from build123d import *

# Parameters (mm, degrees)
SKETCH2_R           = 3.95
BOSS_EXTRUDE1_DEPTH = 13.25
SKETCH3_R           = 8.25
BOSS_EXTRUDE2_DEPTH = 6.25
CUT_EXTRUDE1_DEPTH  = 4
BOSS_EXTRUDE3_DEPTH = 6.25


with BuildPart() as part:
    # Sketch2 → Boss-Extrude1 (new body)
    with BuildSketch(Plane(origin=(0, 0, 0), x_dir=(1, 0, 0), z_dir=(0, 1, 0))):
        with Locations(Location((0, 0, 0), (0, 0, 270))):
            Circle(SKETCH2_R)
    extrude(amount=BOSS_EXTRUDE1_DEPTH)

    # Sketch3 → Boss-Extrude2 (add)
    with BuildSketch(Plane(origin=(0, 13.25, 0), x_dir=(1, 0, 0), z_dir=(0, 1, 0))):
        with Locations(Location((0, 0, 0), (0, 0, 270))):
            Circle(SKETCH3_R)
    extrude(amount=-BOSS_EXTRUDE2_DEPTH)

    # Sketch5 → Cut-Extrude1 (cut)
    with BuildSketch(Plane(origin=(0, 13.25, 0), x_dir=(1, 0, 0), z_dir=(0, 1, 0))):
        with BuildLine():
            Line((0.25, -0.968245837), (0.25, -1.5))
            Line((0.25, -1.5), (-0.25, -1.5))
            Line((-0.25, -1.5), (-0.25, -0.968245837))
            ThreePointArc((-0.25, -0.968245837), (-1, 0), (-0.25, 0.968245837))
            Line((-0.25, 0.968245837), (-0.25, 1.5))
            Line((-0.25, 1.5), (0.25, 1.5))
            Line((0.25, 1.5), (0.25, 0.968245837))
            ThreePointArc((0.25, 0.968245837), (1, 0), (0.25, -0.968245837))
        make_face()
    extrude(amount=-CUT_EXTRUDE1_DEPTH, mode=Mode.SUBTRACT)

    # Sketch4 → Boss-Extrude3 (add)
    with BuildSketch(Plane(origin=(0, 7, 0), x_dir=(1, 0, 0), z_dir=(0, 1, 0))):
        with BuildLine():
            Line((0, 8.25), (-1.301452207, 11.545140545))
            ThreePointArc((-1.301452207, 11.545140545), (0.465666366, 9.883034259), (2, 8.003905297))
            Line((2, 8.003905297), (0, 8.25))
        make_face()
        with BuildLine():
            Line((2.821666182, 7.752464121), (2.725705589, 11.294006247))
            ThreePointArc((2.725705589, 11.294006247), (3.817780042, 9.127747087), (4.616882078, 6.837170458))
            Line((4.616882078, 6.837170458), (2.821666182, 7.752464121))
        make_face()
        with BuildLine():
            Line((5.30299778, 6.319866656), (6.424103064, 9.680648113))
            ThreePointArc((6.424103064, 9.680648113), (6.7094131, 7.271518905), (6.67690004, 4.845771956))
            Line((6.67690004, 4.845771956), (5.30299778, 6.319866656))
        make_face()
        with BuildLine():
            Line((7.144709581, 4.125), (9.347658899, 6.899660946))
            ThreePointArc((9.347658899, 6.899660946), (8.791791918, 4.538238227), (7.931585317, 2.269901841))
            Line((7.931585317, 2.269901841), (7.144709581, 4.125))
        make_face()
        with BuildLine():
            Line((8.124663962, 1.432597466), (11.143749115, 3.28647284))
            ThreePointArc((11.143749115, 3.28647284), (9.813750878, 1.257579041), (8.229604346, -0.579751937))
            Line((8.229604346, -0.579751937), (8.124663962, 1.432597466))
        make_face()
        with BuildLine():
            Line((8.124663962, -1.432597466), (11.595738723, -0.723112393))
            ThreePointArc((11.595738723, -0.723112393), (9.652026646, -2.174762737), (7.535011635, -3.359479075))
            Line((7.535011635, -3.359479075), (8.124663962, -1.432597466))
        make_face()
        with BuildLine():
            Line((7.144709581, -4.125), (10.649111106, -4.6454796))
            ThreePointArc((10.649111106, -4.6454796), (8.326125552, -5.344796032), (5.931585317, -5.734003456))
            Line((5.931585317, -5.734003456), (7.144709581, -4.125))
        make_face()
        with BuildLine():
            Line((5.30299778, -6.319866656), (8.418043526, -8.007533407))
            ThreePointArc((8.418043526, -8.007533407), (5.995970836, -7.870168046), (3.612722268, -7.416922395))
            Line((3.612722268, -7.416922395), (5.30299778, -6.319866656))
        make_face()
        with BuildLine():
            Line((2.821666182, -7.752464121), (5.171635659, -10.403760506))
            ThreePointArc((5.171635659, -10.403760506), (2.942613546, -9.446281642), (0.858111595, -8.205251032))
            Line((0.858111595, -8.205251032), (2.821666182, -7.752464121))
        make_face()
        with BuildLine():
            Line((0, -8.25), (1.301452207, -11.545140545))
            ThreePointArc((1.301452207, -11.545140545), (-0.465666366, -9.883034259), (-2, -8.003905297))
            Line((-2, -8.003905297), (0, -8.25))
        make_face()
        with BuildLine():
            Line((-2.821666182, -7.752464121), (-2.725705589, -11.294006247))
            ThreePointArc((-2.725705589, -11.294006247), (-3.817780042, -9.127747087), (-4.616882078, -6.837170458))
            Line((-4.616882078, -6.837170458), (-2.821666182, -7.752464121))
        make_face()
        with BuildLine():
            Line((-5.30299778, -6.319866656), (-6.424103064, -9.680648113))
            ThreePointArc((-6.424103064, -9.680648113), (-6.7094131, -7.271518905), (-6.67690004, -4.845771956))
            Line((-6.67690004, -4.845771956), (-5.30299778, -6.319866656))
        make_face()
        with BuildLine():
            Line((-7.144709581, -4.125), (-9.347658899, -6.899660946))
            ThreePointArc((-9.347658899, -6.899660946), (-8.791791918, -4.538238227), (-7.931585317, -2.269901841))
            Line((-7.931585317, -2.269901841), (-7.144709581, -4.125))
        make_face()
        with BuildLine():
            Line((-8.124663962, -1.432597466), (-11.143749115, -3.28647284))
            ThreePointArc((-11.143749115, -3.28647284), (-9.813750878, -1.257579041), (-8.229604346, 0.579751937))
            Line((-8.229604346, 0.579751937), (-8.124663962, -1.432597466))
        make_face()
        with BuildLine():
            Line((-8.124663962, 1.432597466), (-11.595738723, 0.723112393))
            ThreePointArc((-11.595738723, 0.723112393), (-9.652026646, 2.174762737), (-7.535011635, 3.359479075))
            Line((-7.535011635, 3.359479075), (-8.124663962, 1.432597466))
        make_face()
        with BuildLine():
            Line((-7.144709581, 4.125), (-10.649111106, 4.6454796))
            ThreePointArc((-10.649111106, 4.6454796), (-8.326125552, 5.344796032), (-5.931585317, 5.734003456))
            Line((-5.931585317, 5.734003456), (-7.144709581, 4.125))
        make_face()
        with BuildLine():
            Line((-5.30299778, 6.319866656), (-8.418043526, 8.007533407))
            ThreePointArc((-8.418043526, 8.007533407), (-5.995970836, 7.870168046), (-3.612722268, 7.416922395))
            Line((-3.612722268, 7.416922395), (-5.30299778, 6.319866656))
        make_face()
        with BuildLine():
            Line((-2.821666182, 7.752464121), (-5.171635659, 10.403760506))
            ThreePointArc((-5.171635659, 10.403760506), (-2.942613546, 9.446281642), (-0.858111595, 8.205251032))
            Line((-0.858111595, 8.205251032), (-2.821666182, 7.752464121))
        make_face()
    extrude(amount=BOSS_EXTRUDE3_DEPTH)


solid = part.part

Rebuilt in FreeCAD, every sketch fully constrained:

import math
import FreeCAD as App
import Part
import Sketcher

V = App.Vector
Q = App.Units.Quantity

doc = App.newDocument("Part")
body = doc.addObject("PartDesign::Body", "Body")

sketch1 = body.newObject("Sketcher::SketchObject", "Sketch")
sketch1.AttachmentSupport = (doc.getObject("XZ_Plane"), [""])
sketch1.MapMode = "FlatFace"
sketch1.addGeometry(Part.Circle(V(0, 0, 0), V(0, 0, 1), 4), False)
sketch1.addConstraint([
    Sketcher.Constraint("Coincident", 0, 3, -1, 1),
    Sketcher.Constraint("Diameter", 0, Q("7.9 mm")),
])
pad1 = body.newObject("PartDesign::Pad", "Pad")
pad1.Profile = sketch1
pad1.Length = 13.25
pad1.Reversed = True

sketch2 = body.newObject("Sketcher::SketchObject", "Sketch001")
sketch2.AttachmentSupport = (doc.getObject("XZ_Plane"), [""])
sketch2.MapMode = "FlatFace"
sketch2.AttachmentOffset = App.Placement(V(0, 0, -13.25), App.Rotation())
sketch2.addGeometry(Part.Circle(V(0, 0, 0), V(0, 0, 1), 8), False)
sketch2.addConstraint([
    Sketcher.Constraint("Coincident", 0, 3, -1, 1),
    Sketcher.Constraint("Diameter", 0, Q("16.5 mm")),
])
pad2 = body.newObject("PartDesign::Pad", "Pad001")
pad2.Profile = sketch2
pad2.Length = 6.25

sketch3 = body.newObject("Sketcher::SketchObject", "Sketch002")
sketch3.AttachmentSupport = (doc.getObject("XZ_Plane"), [""])
sketch3.MapMode = "FlatFace"
sketch3.AttachmentOffset = App.Placement(V(0, 0, -13.25), App.Rotation())
sketch3.addGeometry([
    Part.LineSegment(V(0.2, 1.5, 0), V(0.2, 1, 0)),
    Part.ArcOfCircle(Part.Circle(V(0, 0, 0), V(0, 0, 1), 1), math.radians(-76), math.radians(76)),
    Part.LineSegment(V(0.2, -1, 0), V(0.2, -1.5, 0)),
    Part.LineSegment(V(0.2, -1.5, 0), V(-0.2, -1.5, 0)),
    Part.LineSegment(V(-0.2, -1.5, 0), V(-0.2, -1, 0)),
    Part.ArcOfCircle(Part.Circle(V(0, 0, 0), V(0, 0, 1), 1), math.radians(104), math.radians(256)),
    Part.LineSegment(V(-0.2, 1, 0), V(-0.2, 1.5, 0)),
    Part.LineSegment(V(-0.2, 1.5, 0), V(0.2, 1.5, 0)),
], False)
sketch3.addConstraint([
    Sketcher.Constraint("Coincident", 0, 2, 1, 2),
    Sketcher.Constraint("Coincident", 1, 1, 2, 1),
    Sketcher.Constraint("Coincident", 2, 2, 3, 1),
    Sketcher.Constraint("Coincident", 3, 2, 4, 1),
    Sketcher.Constraint("Coincident", 4, 2, 5, 2),
    Sketcher.Constraint("Coincident", 5, 1, 6, 1),
    Sketcher.Constraint("Coincident", 6, 2, 7, 1),
    Sketcher.Constraint("Coincident", 7, 2, 0, 1),
    Sketcher.Constraint("Vertical", 0),
    Sketcher.Constraint("Vertical", 2),
    Sketcher.Constraint("Horizontal", 3),
    Sketcher.Constraint("Vertical", 4),
    Sketcher.Constraint("Vertical", 6),
    Sketcher.Constraint("Horizontal", 7),
    Sketcher.Constraint("Coincident", 1, 3, -1, 1),
    Sketcher.Constraint("Coincident", 5, 3, -1, 1),
    Sketcher.Constraint("Equal", 1, 5),
    Sketcher.Constraint("Symmetric", 2, 2, 6, 2, -1, 1),
    Sketcher.Constraint("Horizontal", 1, 1, 4, 2),
    Sketcher.Constraint("Horizontal", 0, 2, 5, 1),
    Sketcher.Constraint("Radius", 1, Q("1 mm")),
    Sketcher.Constraint("DistanceX", 3, 2, 3, 1, Q("0.5 mm")),
    Sketcher.Constraint("DistanceY", 2, 2, -1, 1, Q("1.5 mm")),
])
pocket1 = body.newObject("PartDesign::Pocket", "Pocket")
pocket1.Profile = sketch3
pocket1.Length = 4
pocket1.Reversed = True

sketch4 = body.newObject("Sketcher::SketchObject", "Sketch003")
sketch4.AttachmentSupport = (doc.getObject("XZ_Plane"), [""])
sketch4.MapMode = "FlatFace"
sketch4.AttachmentOffset = App.Placement(V(0, 0, -7), App.Rotation())
sketch4.addGeometry([
    Part.LineSegment(V(-1.3, -11.5, 0), V(0, -8.2, 0)),
    Part.LineSegment(V(0, -8.2, 0), V(2, -8, 0)),
    Part.ArcOfCircle(Part.Circle(V(-13.1, 2.7, 0), V(0, 0, 1), 18.5), math.radians(-50.51), math.radians(-35.47)),
    Part.LineSegment(V(2.7, -11.3, 0), V(2.8, -7.8, 0)),
    Part.LineSegment(V(2.8, -7.8, 0), V(4.6, -6.8, 0)),
    Part.ArcOfCircle(Part.Circle(V(-13.2, -1.9, 0), V(0, 0, 1), 18.5), math.radians(-30.51), math.radians(-15.47)),
    Part.LineSegment(V(6.4, -9.7, 0), V(5.3, -6.3, 0)),
    Part.LineSegment(V(5.3, -6.3, 0), V(6.7, -4.8, 0)),
    Part.ArcOfCircle(Part.Circle(V(-11.8, -6.3, 0), V(0, 0, 1), 18.5), math.radians(-10.51), math.radians(4.53)),
    Part.LineSegment(V(9.3, -6.9, 0), V(7.1, -4.1, 0)),
    Part.LineSegment(V(7.1, -4.1, 0), V(7.9, -2.3, 0)),
    Part.ArcOfCircle(Part.Circle(V(-8.9, -9.9, 0), V(0, 0, 1), 18.5), math.radians(9.49), math.radians(24.53)),
    Part.LineSegment(V(11.1, -3.3, 0), V(8.1, -1.4, 0)),
    Part.LineSegment(V(8.1, -1.4, 0), V(8.2, 0.6, 0)),
    Part.ArcOfCircle(Part.Circle(V(-5, -12.4, 0), V(0, 0, 1), 18.5), math.radians(29.49), math.radians(44.53)),
    Part.LineSegment(V(11.6, 0.7, 0), V(8.1, 1.4, 0)),
    Part.LineSegment(V(8.1, 1.4, 0), V(7.5, 3.4, 0)),
    Part.ArcOfCircle(Part.Circle(V(-0.4, -13.3, 0), V(0, 0, 1), 18.5), math.radians(49.49), math.radians(64.53)),
    Part.LineSegment(V(10.6, 4.6, 0), V(7.1, 4.1, 0)),
    Part.LineSegment(V(7.1, 4.1, 0), V(5.9, 5.7, 0)),
    Part.ArcOfCircle(Part.Circle(V(4.2, -12.7, 0), V(0, 0, 1), 18.5), math.radians(69.49), math.radians(84.53)),
    Part.LineSegment(V(8.4, 8, 0), V(5.3, 6.3, 0)),
    Part.LineSegment(V(5.3, 6.3, 0), V(3.6, 7.4, 0)),
    Part.ArcOfCircle(Part.Circle(V(8.3, -10.5, 0), V(0, 0, 1), 18.5), math.radians(89.49), math.radians(104.53)),
    Part.LineSegment(V(5.2, 10.4, 0), V(2.8, 7.8, 0)),
    Part.LineSegment(V(2.8, 7.8, 0), V(0.9, 8.2, 0)),
    Part.ArcOfCircle(Part.Circle(V(11.3, -7, 0), V(0, 0, 1), 18.5), math.radians(109.49), math.radians(124.53)),
    Part.LineSegment(V(1.3, 11.5, 0), V(0, 8.2, 0)),
    Part.LineSegment(V(0, 8.2, 0), V(-2, 8, 0)),
    Part.ArcOfCircle(Part.Circle(V(13.1, -2.7, 0), V(0, 0, 1), 18.5), math.radians(129.49), math.radians(144.53)),
    Part.LineSegment(V(-2.7, 11.3, 0), V(-2.8, 7.8, 0)),
    Part.LineSegment(V(-2.8, 7.8, 0), V(-4.6, 6.8, 0)),
    Part.ArcOfCircle(Part.Circle(V(13.2, 1.9, 0), V(0, 0, 1), 18.5), math.radians(149.49), math.radians(164.53)),
    Part.LineSegment(V(-6.4, 9.7, 0), V(-5.3, 6.3, 0)),
    Part.LineSegment(V(-5.3, 6.3, 0), V(-6.7, 4.8, 0)),
    Part.ArcOfCircle(Part.Circle(V(11.8, 6.3, 0), V(0, 0, 1), 18.5), math.radians(169.49), math.radians(184.53)),
    Part.LineSegment(V(-9.3, 6.9, 0), V(-7.1, 4.1, 0)),
    Part.LineSegment(V(-7.1, 4.1, 0), V(-7.9, 2.3, 0)),
    Part.ArcOfCircle(Part.Circle(V(8.9, 9.9, 0), V(0, 0, 1), 18.5), math.radians(-170.51), math.radians(-155.47)),
    Part.LineSegment(V(-11.1, 3.3, 0), V(-8.1, 1.4, 0)),
    Part.LineSegment(V(-8.1, 1.4, 0), V(-8.2, -0.6, 0)),
    Part.ArcOfCircle(Part.Circle(V(5, 12.4, 0), V(0, 0, 1), 18.5), math.radians(-150.51), math.radians(-135.47)),
    Part.LineSegment(V(-11.6, -0.7, 0), V(-8.1, -1.4, 0)),
    Part.LineSegment(V(-8.1, -1.4, 0), V(-7.5, -3.4, 0)),
    Part.ArcOfCircle(Part.Circle(V(0.4, 13.3, 0), V(0, 0, 1), 18.5), math.radians(-130.51), math.radians(-115.47)),
    Part.LineSegment(V(-10.6, -4.6, 0), V(-7.1, -4.1, 0)),
    Part.LineSegment(V(-7.1, -4.1, 0), V(-5.9, -5.7, 0)),
    Part.ArcOfCircle(Part.Circle(V(-4.2, 12.7, 0), V(0, 0, 1), 18.5), math.radians(-110.51), math.radians(-95.47)),
    Part.LineSegment(V(-8.4, -8, 0), V(-5.3, -6.3, 0)),
    Part.LineSegment(V(-5.3, -6.3, 0), V(-3.6, -7.4, 0)),
    Part.ArcOfCircle(Part.Circle(V(-8.3, 10.5, 0), V(0, 0, 1), 18.5), math.radians(-90.51), math.radians(-75.47)),
    Part.LineSegment(V(-5.2, -10.4, 0), V(-2.8, -7.8, 0)),
    Part.LineSegment(V(-2.8, -7.8, 0), V(-0.9, -8.2, 0)),
    Part.ArcOfCircle(Part.Circle(V(-11.3, 7, 0), V(0, 0, 1), 18.5), math.radians(-70.51), math.radians(-55.47)),
], False)
sketch4.addConstraint([
    Sketcher.Constraint("Coincident", 0, 2, 1, 1),
    Sketcher.Constraint("Coincident", 1, 2, 2, 2),
    Sketcher.Constraint("Coincident", 2, 1, 0, 1),
    Sketcher.Constraint("Coincident", 3, 2, 4, 1),
    Sketcher.Constraint("Coincident", 4, 2, 5, 2),
    Sketcher.Constraint("Coincident", 5, 1, 3, 1),
    Sketcher.Constraint("Coincident", 6, 2, 7, 1),
    Sketcher.Constraint("Coincident", 7, 2, 8, 2),
    Sketcher.Constraint("Coincident", 8, 1, 6, 1),
    Sketcher.Constraint("Coincident", 9, 2, 10, 1),
    Sketcher.Constraint("Coincident", 10, 2, 11, 2),
    Sketcher.Constraint("Coincident", 11, 1, 9, 1),
    Sketcher.Constraint("Coincident", 12, 2, 13, 1),
    Sketcher.Constraint("Coincident", 13, 2, 14, 2),
    Sketcher.Constraint("Coincident", 14, 1, 12, 1),
    Sketcher.Constraint("Coincident", 15, 2, 16, 1),
    Sketcher.Constraint("Coincident", 16, 2, 17, 2),
    Sketcher.Constraint("Coincident", 17, 1, 15, 1),
    Sketcher.Constraint("Coincident", 18, 2, 19, 1),
    Sketcher.Constraint("Coincident", 19, 2, 20, 2),
    Sketcher.Constraint("Coincident", 20, 1, 18, 1),
    Sketcher.Constraint("Coincident", 21, 2, 22, 1),
    Sketcher.Constraint("Coincident", 22, 2, 23, 2),
    Sketcher.Constraint("Coincident", 23, 1, 21, 1),
    Sketcher.Constraint("Coincident", 24, 2, 25, 1),
    Sketcher.Constraint("Coincident", 25, 2, 26, 2),
    Sketcher.Constraint("Coincident", 26, 1, 24, 1),
    Sketcher.Constraint("Coincident", 27, 2, 28, 1),
    Sketcher.Constraint("Coincident", 28, 2, 29, 2),
    Sketcher.Constraint("Coincident", 29, 1, 27, 1),
    Sketcher.Constraint("Coincident", 30, 2, 31, 1),
    Sketcher.Constraint("Coincident", 31, 2, 32, 2),
    Sketcher.Constraint("Coincident", 32, 1, 30, 1),
    Sketcher.Constraint("Coincident", 33, 2, 34, 1),
    Sketcher.Constraint("Coincident", 34, 2, 35, 2),
    Sketcher.Constraint("Coincident", 35, 1, 33, 1),
    Sketcher.Constraint("Coincident", 36, 2, 37, 1),
    Sketcher.Constraint("Coincident", 37, 2, 38, 2),
    Sketcher.Constraint("Coincident", 38, 1, 36, 1),
    Sketcher.Constraint("Coincident", 39, 2, 40, 1),
    Sketcher.Constraint("Coincident", 40, 2, 41, 2),
    Sketcher.Constraint("Coincident", 41, 1, 39, 1),
    Sketcher.Constraint("Coincident", 42, 2, 43, 1),
    Sketcher.Constraint("Coincident", 43, 2, 44, 2),
    Sketcher.Constraint("Coincident", 44, 1, 42, 1),
    Sketcher.Constraint("Coincident", 45, 2, 46, 1),
    Sketcher.Constraint("Coincident", 46, 2, 47, 2),
    Sketcher.Constraint("Coincident", 47, 1, 45, 1),
    Sketcher.Constraint("Coincident", 48, 2, 49, 1),
    Sketcher.Constraint("Coincident", 49, 2, 50, 2),
    Sketcher.Constraint("Coincident", 50, 1, 48, 1),
    Sketcher.Constraint("Coincident", 51, 2, 52, 1),
    Sketcher.Constraint("Coincident", 52, 2, 53, 2),
    Sketcher.Constraint("Coincident", 53, 1, 51, 1),
    Sketcher.Constraint("Equal", 2, 5),
    Sketcher.Constraint("Equal", 5, 8),
    Sketcher.Constraint("Equal", 8, 11),
    Sketcher.Constraint("Equal", 11, 14),
    Sketcher.Constraint("Equal", 14, 17),
    Sketcher.Constraint("Equal", 17, 20),
    Sketcher.Constraint("Equal", 20, 23),
    Sketcher.Constraint("Equal", 23, 26),
    Sketcher.Constraint("Equal", 26, 29),
    Sketcher.Constraint("Equal", 29, 32),
    Sketcher.Constraint("Equal", 32, 35),
    Sketcher.Constraint("Equal", 35, 38),
    Sketcher.Constraint("Equal", 38, 41),
    Sketcher.Constraint("Equal", 41, 44),
    Sketcher.Constraint("Equal", 44, 47),
    Sketcher.Constraint("Equal", 47, 50),
    Sketcher.Constraint("Equal", 50, 53),
    Sketcher.Constraint("Symmetric", 2, 3, 29, 3, -1, 1),
    Sketcher.Constraint("Symmetric", 5, 3, 32, 3, -1, 1),
    Sketcher.Constraint("Symmetric", 8, 3, 35, 3, -1, 1),
    Sketcher.Constraint("Symmetric", 11, 3, 38, 3, -1, 1),
    Sketcher.Constraint("Symmetric", 14, 3, 41, 3, -1, 1),
    Sketcher.Constraint("Symmetric", 17, 3, 44, 3, -1, 1),
    Sketcher.Constraint("Symmetric", 20, 3, 47, 3, -1, 1),
    Sketcher.Constraint("Symmetric", 23, 3, 50, 3, -1, 1),
    Sketcher.Constraint("Symmetric", 26, 3, 53, 3, -1, 1),
    Sketcher.Constraint("Symmetric", 0, 2, 27, 2, -1, 1),
    Sketcher.Constraint("Symmetric", 3, 2, 30, 2, -1, 1),
    Sketcher.Constraint("Symmetric", 6, 2, 33, 2, -1, 1),
    Sketcher.Constraint("Symmetric", 9, 2, 36, 2, -1, 1),
    Sketcher.Constraint("Symmetric", 12, 2, 39, 2, -1, 1),
    Sketcher.Constraint("Symmetric", 15, 2, 42, 2, -1, 1),
    Sketcher.Constraint("Symmetric", 18, 2, 45, 2, -1, 1),
    Sketcher.Constraint("Symmetric", 21, 2, 48, 2, -1, 1),
    Sketcher.Constraint("Symmetric", 24, 2, 51, 2, -1, 1),
    Sketcher.Constraint("Symmetric", 24, 2, 30, 2, -2),
    Sketcher.Constraint("Symmetric", 21, 2, 33, 2, -2),
    Sketcher.Constraint("Symmetric", 18, 2, 36, 2, -2),
    Sketcher.Constraint("Symmetric", 15, 2, 39, 2, -2),
    Sketcher.Constraint("PointOnObject", 0, 2, -2),
    Sketcher.Constraint("Parallel", 0, 27),
    Sketcher.Constraint("Parallel", 1, 28),
    Sketcher.Constraint("Parallel", 3, 30),
    Sketcher.Constraint("Parallel", 4, 31),
    Sketcher.Constraint("Parallel", 6, 33),
    Sketcher.Constraint("Parallel", 7, 34),
    Sketcher.Constraint("Parallel", 9, 36),
    Sketcher.Constraint("Parallel", 10, 37),
    Sketcher.Constraint("Parallel", 12, 39),
    Sketcher.Constraint("Parallel", 13, 40),
    Sketcher.Constraint("Parallel", 15, 42),
    Sketcher.Constraint("Parallel", 16, 43),
    Sketcher.Constraint("Parallel", 18, 45),
    Sketcher.Constraint("Parallel", 19, 46),
    Sketcher.Constraint("Parallel", 21, 48),
    Sketcher.Constraint("Parallel", 22, 49),
    Sketcher.Constraint("Parallel", 24, 51),
    Sketcher.Constraint("Parallel", 25, 52),
    Sketcher.Constraint("Equal", 0, 3),
    Sketcher.Constraint("Equal", 1, 4),
    Sketcher.Constraint("Equal", 3, 6),
    Sketcher.Constraint("Equal", 4, 7),
    Sketcher.Constraint("Equal", 6, 9),
    Sketcher.Constraint("Equal", 7, 10),
    Sketcher.Constraint("Equal", 9, 12),
    Sketcher.Constraint("Equal", 10, 13),
    Sketcher.Constraint("Equal", 12, 15),
    Sketcher.Constraint("Equal", 13, 16),
    Sketcher.Constraint("Equal", 15, 18),
    Sketcher.Constraint("Equal", 16, 19),
    Sketcher.Constraint("Equal", 18, 21),
    Sketcher.Constraint("Equal", 19, 22),
    Sketcher.Constraint("Equal", 21, 24),
    Sketcher.Constraint("Equal", 22, 25),
    Sketcher.Constraint("DistanceX", -1, 1, 1, 2, Q("2 mm")),
    Sketcher.Constraint("DistanceY", 0, 2, -1, 1, Q("8.25 mm")),
    Sketcher.Constraint("Radius", 2, Q("18.492291 mm")),
    Sketcher.Constraint("DistanceY", 9, 2, -1, 1, Q("4.125 mm")),
    Sketcher.Constraint("DistanceY", 5, 3, -1, 1, Q("1.904299 mm")),
    Sketcher.Constraint("DistanceX", 14, 3, -1, 1, Q("4.953499 mm")),
    Sketcher.Constraint("DistanceY", 17, 3, -1, 1, Q("13.335399 mm")),
    Sketcher.Constraint("DistanceX", -1, 1, 7, 2, Q("6.6769 mm")),
    Sketcher.Constraint("DistanceY", 10, 2, -1, 1, Q("2.269902 mm")),
    Sketcher.Constraint("Distance", 0, Q("3.542842 mm")),
    Sketcher.Constraint("DistanceX", 2, 3, -1, 1, Q("13.060269 mm")),
    Sketcher.Constraint("DistanceX", 5, 3, -1, 1, Q("13.20534 mm")),
    Sketcher.Constraint("DistanceX", 8, 3, -1, 1, Q("11.757652 mm")),
    Sketcher.Constraint("DistanceY", 14, 3, -1, 1, Q("12.388309 mm")),
    Sketcher.Constraint("DistanceX", -1, 1, 20, 3, Q("4.168451 mm")),
    Sketcher.Constraint("DistanceX", -1, 1, 23, 3, Q("8.251841 mm")),
    Sketcher.Constraint("DistanceY", 23, 3, -1, 1, Q("10.48401 mm")),
    Sketcher.Constraint("DistanceY", 26, 3, -1, 1, Q("7.029451 mm")),
    Sketcher.Constraint("DistanceY", 2, 1, -1, 1, Q("11.545141 mm")),
    Sketcher.Constraint("DistanceY", 4, 2, -1, 1, Q("6.83717 mm")),
    Sketcher.Constraint("DistanceY", 7, 2, -1, 1, Q("4.845772 mm")),
    Sketcher.Constraint("DistanceY", 8, 1, -1, 1, Q("9.680648 mm")),
    Sketcher.Constraint("DistanceX", -1, 1, 9, 2, Q("7.14471 mm")),
    Sketcher.Constraint("DistanceX", -1, 1, 11, 1, Q("9.347659 mm")),
    Sketcher.Constraint("DistanceY", -1, 1, 13, 2, Q("0.579752 mm")),
    Sketcher.Constraint("DistanceX", -1, 1, 14, 1, Q("11.143749 mm")),
    Sketcher.Constraint("DistanceX", -1, 1, 16, 2, Q("7.535012 mm")),
    Sketcher.Constraint("DistanceX", -1, 1, 20, 1, Q("10.649111 mm")),
    Sketcher.Constraint("DistanceX", -1, 1, 25, 2, Q("0.858112 mm")),
    Sketcher.Constraint("DistanceY", -1, 1, 25, 2, Q("8.205251 mm")),
])
pad3 = body.newObject("PartDesign::Pad", "Pad002")
pad3.Profile = sketch4
pad3.Length = 6.25
pad3.Reversed = True

doc.recompute()
